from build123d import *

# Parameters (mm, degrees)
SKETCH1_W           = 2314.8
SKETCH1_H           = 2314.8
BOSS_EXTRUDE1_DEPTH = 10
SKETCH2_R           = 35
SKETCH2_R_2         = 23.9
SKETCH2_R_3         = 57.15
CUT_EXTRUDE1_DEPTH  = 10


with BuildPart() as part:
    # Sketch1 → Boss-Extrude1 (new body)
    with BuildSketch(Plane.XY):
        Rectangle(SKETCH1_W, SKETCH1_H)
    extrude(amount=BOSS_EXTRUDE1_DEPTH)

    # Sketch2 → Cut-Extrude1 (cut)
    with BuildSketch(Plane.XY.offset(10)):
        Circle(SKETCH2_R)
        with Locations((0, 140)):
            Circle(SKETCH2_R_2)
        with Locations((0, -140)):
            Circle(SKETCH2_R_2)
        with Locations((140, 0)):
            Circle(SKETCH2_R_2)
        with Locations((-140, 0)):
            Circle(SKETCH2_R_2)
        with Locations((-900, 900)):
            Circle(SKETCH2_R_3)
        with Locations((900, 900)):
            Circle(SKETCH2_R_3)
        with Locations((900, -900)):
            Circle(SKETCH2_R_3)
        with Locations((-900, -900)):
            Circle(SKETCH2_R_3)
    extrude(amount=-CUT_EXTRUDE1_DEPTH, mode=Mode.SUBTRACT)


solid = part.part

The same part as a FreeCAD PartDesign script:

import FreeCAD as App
import Part
import Sketcher
Q = App.Units.Quantity


def add_polygon(sketch, points):
    """Adds a closed chain of lines whose ends are joined by coincident constraints."""
    first, n = sketch.GeometryCount, len(points)
    for a, b in zip(points, points[1:] + points[:1]):
        sketch.addGeometry(Part.LineSegment(App.Vector(*a, 0), App.Vector(*b, 0)), False)
    for i in range(n):
        sketch.addConstraint(Sketcher.Constraint("Coincident", first + i, 2, first + (i + 1) % n, 1))

doc = App.newDocument("Part")
body = doc.addObject("PartDesign::Body", "Body")

sketch1 = body.newObject("Sketcher::SketchObject", "Sketch")
sketch1.AttachmentSupport = (doc.getObject("XY_Plane"), [""])
sketch1.MapMode = "FlatFace"
add_polygon(sketch1, [(-1157, 1157), (-1157, -1157), (1157, -1157), (1157, 1157)])
sketch1.addConstraint(Sketcher.Constraint("Vertical", 0))
sketch1.addConstraint(Sketcher.Constraint("Horizontal", 1))
sketch1.addConstraint(Sketcher.Constraint("Vertical", 2))
sketch1.addConstraint(Sketcher.Constraint("Horizontal", 3))
sketch1.addConstraint(Sketcher.Constraint("Symmetric", 0, 2, 2, 2, -1, 1))
sketch1.addConstraint(Sketcher.Constraint("Equal", 3, 0))
sketch1.addConstraint(Sketcher.Constraint("DistanceX", 1, 1, 1, 2, Q("2314.8 mm")))
pad1 = body.newObject("PartDesign::Pad", "Pad")
pad1.Profile = sketch1
pad1.Length = 10

sketch2 = body.newObject("Sketcher::SketchObject", "Sketch001")
sketch2.AttachmentSupport = (doc.getObject("XY_Plane"), [""])
sketch2.MapMode = "FlatFace"
sketch2.AttachmentOffset = App.Placement(App.Vector(0, 0, 10), App.Rotation())
sketch2.addGeometry(Part.Circle(App.Vector(0, 0, 0), App.Vector(0, 0, 1), 35), False)
sketch2.addGeometry(Part.Circle(App.Vector(0, 140, 0), App.Vector(0, 0, 1), 24), False)
sketch2.addGeometry(Part.Circle(App.Vector(0, -140, 0), App.Vector(0, 0, 1), 24), False)
sketch2.addGeometry(Part.Circle(App.Vector(140, 0, 0), App.Vector(0, 0, 1), 24), False)
sketch2.addGeometry(Part.Circle(App.Vector(-140, 0, 0), App.Vector(0, 0, 1), 24), False)
sketch2.addGeometry(Part.Circle(App.Vector(-900, 900, 0), App.Vector(0, 0, 1), 57), False)
sketch2.addGeometry(Part.Circle(App.Vector(900, 900, 0), App.Vector(0, 0, 1), 57), False)
sketch2.addGeometry(Part.Circle(App.Vector(900, -900, 0), App.Vector(0, 0, 1), 57), False)
sketch2.addGeometry(Part.Circle(App.Vector(-900, -900, 0), App.Vector(0, 0, 1), 57), False)
sketch2.addConstraint(Sketcher.Constraint("Coincident", 0, 3, -1, 1))
sketch2.addConstraint(Sketcher.Constraint("Equal", 1, 2))
sketch2.addConstraint(Sketcher.Constraint("Equal", 2, 3))
sketch2.addConstraint(Sketcher.Constraint("Equal", 3, 4))
sketch2.addConstraint(Sketcher.Constraint("Equal", 5, 6))
sketch2.addConstraint(Sketcher.Constraint("Equal", 6, 7))
sketch2.addConstraint(Sketcher.Constraint("Equal", 7, 8))
sketch2.addConstraint(Sketcher.Constraint("Symmetric", 1, 3, 2, 3, -1, 1))
sketch2.addConstraint(Sketcher.Constraint("Symmetric", 3, 3, 4, 3, -1, 1))
sketch2.addConstraint(Sketcher.Constraint("Symmetric", 5, 3, 7, 3, -1, 1))
sketch2.addConstraint(Sketcher.Constraint("Symmetric", 6, 3, 8, 3, -1, 1))
sketch2.addConstraint(Sketcher.Constraint("Symmetric", 5, 3, 6, 3, -2))
sketch2.addConstraint(Sketcher.Constraint("PointOnObject", 1, 3, -2))
sketch2.addConstraint(Sketcher.Constraint("PointOnObject", 3, 3, -1))
sketch2.addConstraint(Sketcher.Constraint("Diameter", 0, Q("70 mm")))
sketch2.addConstraint(Sketcher.Constraint("Diameter", 1, Q("47.8 mm")))
sketch2.addConstraint(Sketcher.Constraint("Diameter", 5, Q("114.3 mm")))
sketch2.addConstraint(Sketcher.Constraint("DistanceY", -1, 1, 1, 3, Q("140 mm")))
sketch2.addConstraint(Sketcher.Constraint("DistanceX", -1, 1, 3, 3, Q("140 mm")))
sketch2.addConstraint(Sketcher.Constraint("DistanceX", 5, 3, -1, 1, Q("900 mm")))
sketch2.addConstraint(Sketcher.Constraint("DistanceY", -1, 1, 5, 3, Q("900 mm")))
pocket1 = body.newObject("PartDesign::Pocket", "Pocket")
pocket1.Profile = sketch2
pocket1.Length = 10

doc.recompute()
